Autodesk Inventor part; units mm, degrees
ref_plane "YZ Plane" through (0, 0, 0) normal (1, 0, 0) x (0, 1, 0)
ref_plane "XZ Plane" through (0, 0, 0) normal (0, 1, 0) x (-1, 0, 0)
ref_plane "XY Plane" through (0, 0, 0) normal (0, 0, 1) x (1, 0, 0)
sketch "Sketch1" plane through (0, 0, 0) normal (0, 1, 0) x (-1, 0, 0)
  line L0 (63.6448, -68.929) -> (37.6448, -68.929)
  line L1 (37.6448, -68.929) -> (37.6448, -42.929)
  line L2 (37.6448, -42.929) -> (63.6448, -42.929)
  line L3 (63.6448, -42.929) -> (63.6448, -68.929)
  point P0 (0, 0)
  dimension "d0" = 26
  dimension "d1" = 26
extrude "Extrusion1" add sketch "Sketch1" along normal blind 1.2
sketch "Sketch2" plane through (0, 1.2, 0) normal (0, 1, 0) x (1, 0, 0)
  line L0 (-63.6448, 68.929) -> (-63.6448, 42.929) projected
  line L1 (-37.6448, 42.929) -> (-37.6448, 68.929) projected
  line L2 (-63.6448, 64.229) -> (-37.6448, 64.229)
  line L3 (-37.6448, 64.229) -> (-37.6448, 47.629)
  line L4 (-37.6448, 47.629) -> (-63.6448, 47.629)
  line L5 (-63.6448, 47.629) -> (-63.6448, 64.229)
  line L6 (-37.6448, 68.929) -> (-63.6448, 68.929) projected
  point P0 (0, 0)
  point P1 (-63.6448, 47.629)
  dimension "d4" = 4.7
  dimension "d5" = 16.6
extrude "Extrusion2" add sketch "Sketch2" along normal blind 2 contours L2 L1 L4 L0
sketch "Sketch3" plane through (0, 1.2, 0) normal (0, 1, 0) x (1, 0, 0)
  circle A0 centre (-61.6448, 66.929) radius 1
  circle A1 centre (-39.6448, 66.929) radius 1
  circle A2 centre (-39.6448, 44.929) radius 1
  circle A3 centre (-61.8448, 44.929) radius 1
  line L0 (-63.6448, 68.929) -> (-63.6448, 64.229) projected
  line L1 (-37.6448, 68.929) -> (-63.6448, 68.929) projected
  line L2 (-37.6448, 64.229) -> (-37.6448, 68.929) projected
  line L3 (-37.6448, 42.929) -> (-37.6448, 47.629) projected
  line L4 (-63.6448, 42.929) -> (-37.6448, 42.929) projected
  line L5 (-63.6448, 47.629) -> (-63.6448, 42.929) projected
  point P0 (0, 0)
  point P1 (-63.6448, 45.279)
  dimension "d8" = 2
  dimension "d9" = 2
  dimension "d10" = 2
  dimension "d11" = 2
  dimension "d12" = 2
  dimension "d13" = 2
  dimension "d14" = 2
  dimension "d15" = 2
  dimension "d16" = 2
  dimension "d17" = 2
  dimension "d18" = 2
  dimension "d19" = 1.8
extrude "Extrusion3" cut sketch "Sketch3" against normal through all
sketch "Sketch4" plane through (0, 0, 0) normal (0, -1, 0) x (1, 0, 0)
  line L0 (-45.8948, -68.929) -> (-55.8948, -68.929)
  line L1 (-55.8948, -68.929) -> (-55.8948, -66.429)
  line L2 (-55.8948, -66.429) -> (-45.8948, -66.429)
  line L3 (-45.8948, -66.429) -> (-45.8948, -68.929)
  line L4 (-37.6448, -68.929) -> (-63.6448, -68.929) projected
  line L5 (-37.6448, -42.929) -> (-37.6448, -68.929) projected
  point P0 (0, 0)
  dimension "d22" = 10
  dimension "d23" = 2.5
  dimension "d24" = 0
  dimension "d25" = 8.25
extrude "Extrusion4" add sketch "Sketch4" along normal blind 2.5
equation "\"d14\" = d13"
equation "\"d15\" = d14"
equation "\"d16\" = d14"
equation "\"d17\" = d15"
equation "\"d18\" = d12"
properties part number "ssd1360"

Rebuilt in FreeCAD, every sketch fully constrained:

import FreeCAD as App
import Part
import Sketcher
from FreeCAD import Vector
Q = App.Units.Quantity

doc = App.newDocument("Part")
body = doc.addObject("PartDesign::Body", "Body")

# Sketch on XZ plane
sketch1 = body.newObject("Sketcher::SketchObject", "Sketch")
sketch1.AttachmentSupport = (doc.getObject("XZ_Plane"), [""])
sketch1.MapMode = "FlatFace"
sketch1.addGeometry([
    Part.LineSegment(Vector(-38, -69, 0), Vector(-64, -69, 0)),
    Part.LineSegment(Vector(-64, -69, 0), Vector(-64, -43, 0)),
    Part.LineSegment(Vector(-64, -43, 0), Vector(-38, -43, 0)),
    Part.LineSegment(Vector(-38, -43, 0), Vector(-38, -69, 0)),
], False)
sketch1.addConstraint([
    Sketcher.Constraint("Coincident", 0, 2, 1, 1),
    Sketcher.Constraint("Coincident", 1, 2, 2, 1),
    Sketcher.Constraint("Coincident", 2, 2, 3, 1),
    Sketcher.Constraint("Coincident", 3, 2, 0, 1),
    Sketcher.Constraint("Horizontal", 0),
    Sketcher.Constraint("Vertical", 1),
    Sketcher.Constraint("Horizontal", 2),
    Sketcher.Constraint("Vertical", 3),
    Sketcher.Constraint("Equal", 2, 1),
    Sketcher.Constraint("DistanceX", 0, 2, 0, 1, Q("26 mm")),
    Sketcher.Constraint("DistanceY", 0, 2, -1, 1, Q("68.929 mm")),
    Sketcher.Constraint("DistanceX", 0, 2, -1, 1, Q("63.6448 mm")),
])
pad1 = body.newObject("PartDesign::Pad", "Pad")
pad1.Profile = sketch1
pad1.Length = 1.2
pad1.Reversed = True

# Sketch on XZ plane
sketch2 = body.newObject("Sketcher::SketchObject", "Sketch001")
sketch2.AttachmentSupport = (doc.getObject("XZ_Plane"), [""])
sketch2.MapMode = "FlatFace"
sketch2.AttachmentOffset = App.Placement(Vector(0, 0, -1.2), App.Rotation())
sketch2.addGeometry([
    Part.LineSegment(Vector(-38, -64, 0), Vector(-64, -64, 0)),
    Part.LineSegment(Vector(-64, -64, 0), Vector(-64, -48, 0)),
    Part.LineSegment(Vector(-64, -48, 0), Vector(-38, -48, 0)),
    Part.LineSegment(Vector(-38, -48, 0), Vector(-38, -64, 0)),
], False)
sketch2.addConstraint([
    Sketcher.Constraint("Coincident", 0, 2, 1, 1),
    Sketcher.Constraint("Coincident", 1, 2, 2, 1),
    Sketcher.Constraint("Coincident", 2, 2, 3, 1),
    Sketcher.Constraint("Coincident", 3, 2, 0, 1),
    Sketcher.Constraint("Horizontal", 0),
    Sketcher.Constraint("Vertical", 1),
    Sketcher.Constraint("Horizontal", 2),
    Sketcher.Constraint("Vertical", 3),
    Sketcher.Constraint("DistanceY", 1, 1, 1, 2, Q("16.6 mm")),
    Sketcher.Constraint("DistanceX", 0, 2, 0, 1, Q("26 mm")),
    Sketcher.Constraint("DistanceY", 0, 2, -1, 1, Q("64.229 mm")),
    Sketcher.Constraint("DistanceX", 0, 2, -1, 1, Q("63.6448 mm")),
])
pad2 = body.newObject("PartDesign::Pad", "Pad001")
pad2.Profile = sketch2
pad2.Length = 2
pad2.Reversed = True

# Sketch on XZ plane
sketch3 = body.newObject("Sketcher::SketchObject", "Sketch002")
sketch3.AttachmentSupport = (doc.getObject("XZ_Plane"), [""])
sketch3.MapMode = "FlatFace"
sketch3.AttachmentOffset = App.Placement(Vector(0, 0, -1.2), App.Rotation())
sketch3.addGeometry([
    Part.Circle(Vector(-61.6, -66.9, 0), Vector(0, 0, 1), 1),
    Part.Circle(Vector(-39.6, -66.9, 0), Vector(0, 0, 1), 1),
    Part.Circle(Vector(-39.6, -44.9, 0), Vector(0, 0, 1), 1),
    Part.Circle(Vector(-61.8, -44.9, 0), Vector(0, 0, 1), 1),
], False)
sketch3.addConstraint([
    Sketcher.Constraint("Equal", 0, 1),
    Sketcher.Constraint("Equal", 1, 2),
    Sketcher.Constraint("Equal", 2, 3),
    Sketcher.Constraint("Horizontal", 0, 3, 1, 3),
    Sketcher.Constraint("Horizontal", 2, 3, 3, 3),
    Sketcher.Constraint("Vertical", 1, 3, 2, 3),
    Sketcher.Constraint("Diameter", 0, Q("2 mm")),
    Sketcher.Constraint("DistanceX", 0, 3, 1, 3, Q("22 mm")),
    Sketcher.Constraint("DistanceY", 1, 3, 2, 3, Q("22 mm")),
    Sketcher.Constraint("DistanceX", 3, 3, 0, 3, Q("0.2 mm")),
    Sketcher.Constraint("DistanceY", 0, 3, -1, 1, Q("66.929 mm")),
    Sketcher.Constraint("DistanceX", 0, 3, -1, 1, Q("61.6448 mm")),
])
pocket1 = body.newObject("PartDesign::Pocket", "Pocket")
pocket1.Profile = sketch3
pocket1.Type = "ThroughAll"
pocket1.Reversed = True

# Sketch on XZ plane
sketch4 = body.newObject("Sketcher::SketchObject", "Sketch003")
sketch4.AttachmentSupport = (doc.getObject("XZ_Plane"), [""])
sketch4.MapMode = "FlatFace"
sketch4.addGeometry([
    Part.LineSegment(Vector(-55.9, -68.9, 0), Vector(-45.9, -68.9, 0)),
    Part.LineSegment(Vector(-45.9, -68.9, 0), Vector(-45.9, -66.4, 0)),
    Part.LineSegment(Vector(-45.9, -66.4, 0), Vector(-55.9, -66.4, 0)),
    Part.LineSegment(Vector(-55.9, -66.4, 0), Vector(-55.9, -68.9, 0)),
], False)
sketch4.addConstraint([
    Sketcher.Constraint("Coincident", 0, 2, 1, 1),
    Sketcher.Constraint("Coincident", 1, 2, 2, 1),
    Sketcher.Constraint("Coincident", 2, 2, 3, 1),
    Sketcher.Constraint("Coincident", 3, 2, 0, 1),
    Sketcher.Constraint("Horizontal", 0),
    Sketcher.Constraint("Vertical", 1),
    Sketcher.Constraint("Horizontal", 2),
    Sketcher.Constraint("Vertical", 3),
    Sketcher.Constraint("DistanceX", 0, 1, 0, 2, Q("10 mm")),
    Sketcher.Constraint("DistanceY", 1, 1, 1, 2, Q("2.5 mm")),
    Sketcher.Constraint("DistanceY", 0, 2, -1, 1, Q("68.929 mm")),
    Sketcher.Constraint("DistanceX", 0, 2, -1, 1, Q("45.8948 mm")),
])
pad3 = body.newObject("PartDesign::Pad", "Pad002")
pad3.Profile = sketch4
pad3.Length = 2.5

doc.recompute()
